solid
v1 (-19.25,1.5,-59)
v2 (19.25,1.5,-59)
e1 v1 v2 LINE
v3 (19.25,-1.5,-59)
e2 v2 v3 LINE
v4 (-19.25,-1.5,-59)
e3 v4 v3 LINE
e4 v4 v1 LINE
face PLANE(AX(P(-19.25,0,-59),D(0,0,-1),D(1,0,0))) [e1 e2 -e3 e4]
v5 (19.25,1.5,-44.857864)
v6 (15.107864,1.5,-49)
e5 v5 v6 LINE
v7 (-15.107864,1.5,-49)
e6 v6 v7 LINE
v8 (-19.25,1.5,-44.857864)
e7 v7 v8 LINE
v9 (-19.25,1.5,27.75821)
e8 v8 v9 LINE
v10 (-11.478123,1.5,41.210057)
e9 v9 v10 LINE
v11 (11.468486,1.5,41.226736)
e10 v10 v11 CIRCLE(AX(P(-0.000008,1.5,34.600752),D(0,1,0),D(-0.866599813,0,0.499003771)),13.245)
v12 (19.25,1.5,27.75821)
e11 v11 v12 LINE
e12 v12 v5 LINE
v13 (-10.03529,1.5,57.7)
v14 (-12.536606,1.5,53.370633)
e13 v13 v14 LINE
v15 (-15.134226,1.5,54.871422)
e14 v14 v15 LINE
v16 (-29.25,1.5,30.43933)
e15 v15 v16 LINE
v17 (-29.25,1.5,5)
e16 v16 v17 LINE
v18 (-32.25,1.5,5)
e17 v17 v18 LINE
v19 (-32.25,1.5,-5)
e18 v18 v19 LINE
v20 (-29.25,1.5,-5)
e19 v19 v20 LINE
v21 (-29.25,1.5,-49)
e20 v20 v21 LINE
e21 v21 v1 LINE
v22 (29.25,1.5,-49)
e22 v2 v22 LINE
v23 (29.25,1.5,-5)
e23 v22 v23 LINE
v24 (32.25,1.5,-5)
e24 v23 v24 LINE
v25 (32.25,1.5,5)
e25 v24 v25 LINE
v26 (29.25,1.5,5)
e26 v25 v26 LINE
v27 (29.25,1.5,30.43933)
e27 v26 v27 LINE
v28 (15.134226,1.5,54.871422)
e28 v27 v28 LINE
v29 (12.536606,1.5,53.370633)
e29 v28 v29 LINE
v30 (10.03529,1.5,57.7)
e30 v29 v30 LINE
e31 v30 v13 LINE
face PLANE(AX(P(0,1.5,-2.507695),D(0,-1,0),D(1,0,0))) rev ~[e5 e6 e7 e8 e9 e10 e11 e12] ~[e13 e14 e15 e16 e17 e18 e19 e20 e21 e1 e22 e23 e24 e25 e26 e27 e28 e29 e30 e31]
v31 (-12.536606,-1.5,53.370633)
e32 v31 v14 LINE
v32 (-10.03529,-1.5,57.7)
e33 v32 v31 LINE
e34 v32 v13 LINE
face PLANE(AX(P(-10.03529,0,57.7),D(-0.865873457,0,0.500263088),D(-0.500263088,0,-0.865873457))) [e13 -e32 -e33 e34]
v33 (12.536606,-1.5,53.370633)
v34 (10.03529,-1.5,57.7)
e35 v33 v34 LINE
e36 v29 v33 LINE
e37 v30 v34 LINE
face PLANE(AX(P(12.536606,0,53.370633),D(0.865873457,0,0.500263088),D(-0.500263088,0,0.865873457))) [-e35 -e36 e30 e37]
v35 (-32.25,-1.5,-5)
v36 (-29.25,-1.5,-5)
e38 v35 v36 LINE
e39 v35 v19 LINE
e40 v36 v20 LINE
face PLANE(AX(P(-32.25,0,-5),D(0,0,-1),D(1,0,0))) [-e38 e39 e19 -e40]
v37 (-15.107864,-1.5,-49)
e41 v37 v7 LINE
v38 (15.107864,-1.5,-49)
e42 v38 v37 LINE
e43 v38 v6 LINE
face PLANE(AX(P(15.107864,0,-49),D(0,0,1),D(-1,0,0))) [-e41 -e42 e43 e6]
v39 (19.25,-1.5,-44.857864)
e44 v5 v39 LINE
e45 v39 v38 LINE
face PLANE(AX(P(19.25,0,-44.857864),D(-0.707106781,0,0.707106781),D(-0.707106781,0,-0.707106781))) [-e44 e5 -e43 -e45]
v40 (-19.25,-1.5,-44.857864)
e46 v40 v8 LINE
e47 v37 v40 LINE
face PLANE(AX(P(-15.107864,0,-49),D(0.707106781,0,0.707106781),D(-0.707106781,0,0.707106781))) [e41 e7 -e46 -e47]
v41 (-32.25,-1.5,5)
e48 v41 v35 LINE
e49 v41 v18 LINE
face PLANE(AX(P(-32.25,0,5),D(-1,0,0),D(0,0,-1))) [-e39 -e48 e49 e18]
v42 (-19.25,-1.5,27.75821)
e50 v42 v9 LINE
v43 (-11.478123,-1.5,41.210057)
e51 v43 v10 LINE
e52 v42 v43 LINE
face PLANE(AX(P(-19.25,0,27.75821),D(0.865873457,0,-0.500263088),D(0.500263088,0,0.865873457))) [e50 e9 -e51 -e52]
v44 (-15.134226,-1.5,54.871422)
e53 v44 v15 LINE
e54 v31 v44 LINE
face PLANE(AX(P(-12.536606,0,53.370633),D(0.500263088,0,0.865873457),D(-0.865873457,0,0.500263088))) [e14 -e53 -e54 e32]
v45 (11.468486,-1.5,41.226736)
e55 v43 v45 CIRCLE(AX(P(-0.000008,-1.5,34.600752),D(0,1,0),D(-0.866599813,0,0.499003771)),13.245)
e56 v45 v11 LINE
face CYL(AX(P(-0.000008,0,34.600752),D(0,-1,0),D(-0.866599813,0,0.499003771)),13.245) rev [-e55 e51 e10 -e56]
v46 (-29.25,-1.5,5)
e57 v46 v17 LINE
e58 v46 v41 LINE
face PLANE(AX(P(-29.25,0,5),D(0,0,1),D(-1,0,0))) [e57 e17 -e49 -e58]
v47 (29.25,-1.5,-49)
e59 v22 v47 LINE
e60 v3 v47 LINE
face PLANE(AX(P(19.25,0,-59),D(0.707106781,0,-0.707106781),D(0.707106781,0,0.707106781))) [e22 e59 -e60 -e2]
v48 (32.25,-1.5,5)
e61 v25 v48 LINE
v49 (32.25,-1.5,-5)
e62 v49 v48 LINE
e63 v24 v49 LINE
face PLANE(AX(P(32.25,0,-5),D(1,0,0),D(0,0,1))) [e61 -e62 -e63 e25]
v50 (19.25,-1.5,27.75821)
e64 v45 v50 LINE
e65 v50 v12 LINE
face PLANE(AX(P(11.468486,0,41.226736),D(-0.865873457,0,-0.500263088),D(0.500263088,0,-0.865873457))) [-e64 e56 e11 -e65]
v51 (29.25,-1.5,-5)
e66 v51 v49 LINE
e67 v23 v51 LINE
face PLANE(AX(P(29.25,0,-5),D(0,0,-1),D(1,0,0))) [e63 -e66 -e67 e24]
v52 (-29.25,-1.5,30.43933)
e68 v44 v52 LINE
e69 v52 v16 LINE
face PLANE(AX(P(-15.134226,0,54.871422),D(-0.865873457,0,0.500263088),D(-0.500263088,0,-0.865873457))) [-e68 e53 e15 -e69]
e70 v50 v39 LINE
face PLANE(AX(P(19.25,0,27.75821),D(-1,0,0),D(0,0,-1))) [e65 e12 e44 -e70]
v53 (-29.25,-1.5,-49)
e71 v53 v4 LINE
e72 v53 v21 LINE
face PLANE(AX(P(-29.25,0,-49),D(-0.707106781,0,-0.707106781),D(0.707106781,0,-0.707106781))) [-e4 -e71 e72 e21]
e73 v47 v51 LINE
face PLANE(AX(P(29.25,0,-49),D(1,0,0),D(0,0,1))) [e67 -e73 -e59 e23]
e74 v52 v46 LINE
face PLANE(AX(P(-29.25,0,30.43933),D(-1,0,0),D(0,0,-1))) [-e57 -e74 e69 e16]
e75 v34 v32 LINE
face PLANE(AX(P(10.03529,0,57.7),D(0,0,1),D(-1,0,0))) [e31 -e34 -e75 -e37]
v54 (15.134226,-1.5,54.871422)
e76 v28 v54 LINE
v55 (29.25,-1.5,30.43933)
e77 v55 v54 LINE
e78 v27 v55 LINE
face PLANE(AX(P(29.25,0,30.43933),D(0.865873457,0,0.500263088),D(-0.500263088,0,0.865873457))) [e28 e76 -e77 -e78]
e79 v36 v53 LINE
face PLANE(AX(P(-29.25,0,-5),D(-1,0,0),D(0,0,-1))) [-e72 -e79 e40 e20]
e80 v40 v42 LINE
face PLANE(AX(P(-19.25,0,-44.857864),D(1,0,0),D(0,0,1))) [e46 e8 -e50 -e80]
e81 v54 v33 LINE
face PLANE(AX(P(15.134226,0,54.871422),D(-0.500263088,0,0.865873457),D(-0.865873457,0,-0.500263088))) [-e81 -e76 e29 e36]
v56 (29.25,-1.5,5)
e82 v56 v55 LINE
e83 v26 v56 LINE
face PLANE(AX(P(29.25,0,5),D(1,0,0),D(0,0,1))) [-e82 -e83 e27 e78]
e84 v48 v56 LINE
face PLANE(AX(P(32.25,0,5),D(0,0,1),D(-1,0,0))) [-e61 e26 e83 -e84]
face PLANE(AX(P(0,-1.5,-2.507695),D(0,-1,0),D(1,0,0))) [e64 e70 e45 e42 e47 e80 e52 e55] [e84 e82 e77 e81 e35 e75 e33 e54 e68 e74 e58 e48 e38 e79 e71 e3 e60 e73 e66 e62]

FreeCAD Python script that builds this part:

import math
import FreeCAD as App
import Part
import Sketcher


def add_polygon(sketch, points):
    """Adds a closed chain of lines whose ends are joined by coincident constraints."""
    first, n = sketch.GeometryCount, len(points)
    for a, b in zip(points, points[1:] + points[:1]):
        sketch.addGeometry(Part.LineSegment(App.Vector(*a, 0), App.Vector(*b, 0)), False)
    for i in range(n):
        sketch.addConstraint(Sketcher.Constraint("Coincident", first + i, 2, first + (i + 1) % n, 1))

doc = App.newDocument("Part")
params = doc.addObject("Spreadsheet::Sheet", "Params")
for row, (alias, value) in enumerate([
    ("sketch1_width", "3 mm"),
    ("sketch1_height", "44 mm"),
    ("sketch1_height2", "10 mm"),
    ("sketch1_length", "3 mm"),
    ("sketch1_length2", "5 mm"),
    ("pad1_length", "3 mm"),
], start=1):
    params.set(f"A{row}", alias)
    params.set(f"B{row}", "=" + value)
    params.setAlias(f"B{row}", alias)

body = doc.addObject("PartDesign::Body", "Body")

# Sketch on XZ plane
sketch1 = body.newObject("Sketcher::SketchObject", "Sketch")
sketch1.AttachmentSupport = (doc.getObject("XZ_Plane"), [""])
sketch1.MapMode = "FlatFace"
add_polygon(sketch1, [(-19.2, -59), (19.2, -59), (29.2, -49), (29.2, -5), (32.2, -5), (32.2, 5), (29.2, 5), (29.2, 30.4), (15.1, 54.9), (12.5, 53.4), (10, 57.7), (-10, 57.7), (-12.5, 53.4), (-15.1, 54.9), (-29.2, 30.4), (-29.2, 5), (-32.2, 5), (-32.2, -5), (-29.2, -5), (-29.2, -49)])  # lines 0-19
sketch1.addGeometry(Part.LineSegment(App.Vector(19.2, 27.8, 0), App.Vector(19.2, -44.9, 0)), False)  # 20
sketch1.addGeometry(Part.LineSegment(App.Vector(19.2, -44.9, 0), App.Vector(15.1, -49, 0)), False)  # 21
sketch1.addGeometry(Part.LineSegment(App.Vector(15.1, -49, 0), App.Vector(-15.1, -49, 0)), False)  # 22
sketch1.addGeometry(Part.LineSegment(App.Vector(-15.1, -49, 0), App.Vector(-19.2, -44.9, 0)), False)  # 23
sketch1.addGeometry(Part.LineSegment(App.Vector(-19.2, -44.9, 0), App.Vector(-19.2, 27.8, 0)), False)  # 24
sketch1.addGeometry(Part.LineSegment(App.Vector(-19.2, 27.8, 0), App.Vector(-11.5, 41.2, 0)), False)  # 25
sketch1.addGeometry(Part.ArcOfCircle(Part.Circle(App.Vector(0, 34.6, 0), App.Vector(0, 0, 1), 13.2), math.radians(30), math.radians(150)), False)  # 26
sketch1.addGeometry(Part.LineSegment(App.Vector(11.5, 41.2, 0), App.Vector(19.2, 27.8, 0)), False)  # 27
sketch1.addConstraint(Sketcher.Constraint("Coincident", 20, 2, 21, 1))
sketch1.addConstraint(Sketcher.Constraint("Coincident", 21, 2, 22, 1))
sketch1.addConstraint(Sketcher.Constraint("Coincident", 22, 2, 23, 1))
sketch1.addConstraint(Sketcher.Constraint("Coincident", 23, 2, 24, 1))
sketch1.addConstraint(Sketcher.Constraint("Coincident", 24, 2, 25, 1))
sketch1.addConstraint(Sketcher.Constraint("Coincident", 25, 2, 26, 2))
sketch1.addConstraint(Sketcher.Constraint("Tangent", 26, 1, 27, 1))
sketch1.addConstraint(Sketcher.Constraint("Coincident", 27, 2, 20, 1))
sketch1.addConstraint(Sketcher.Constraint("Horizontal", 0))
sketch1.addConstraint(Sketcher.Constraint("Vertical", 2))
sketch1.addConstraint(Sketcher.Constraint("Horizontal", 3))
sketch1.addConstraint(Sketcher.Constraint("Vertical", 4))
sketch1.addConstraint(Sketcher.Constraint("Horizontal", 5))
sketch1.addConstraint(Sketcher.Constraint("Vertical", 6))
sketch1.addConstraint(Sketcher.Constraint("Horizontal", 10))
sketch1.addConstraint(Sketcher.Constraint("Vertical", 14))
sketch1.addConstraint(Sketcher.Constraint("Horizontal", 15))
sketch1.addConstraint(Sketcher.Constraint("Vertical", 16))
sketch1.addConstraint(Sketcher.Constraint("Horizontal", 17))
sketch1.addConstraint(Sketcher.Constraint("Vertical", 18))
sketch1.addConstraint(Sketcher.Constraint("Vertical", 20))
sketch1.addConstraint(Sketcher.Constraint("Horizontal", 22))
sketch1.addConstraint(Sketcher.Constraint("Vertical", 24))
sketch1.addConstraint(Sketcher.Constraint("Symmetric", 2, 2, 14, 2, -1, 1))
sketch1.addConstraint(Sketcher.Constraint("Symmetric", 4, 2, 16, 2, -1, 1))
sketch1.addConstraint(Sketcher.Constraint("Symmetric", 8, 2, 11, 2, -2))
sketch1.addConstraint(Sketcher.Constraint("Symmetric", 7, 2, 12, 2, -2))
sketch1.addConstraint(Sketcher.Constraint("Symmetric", 6, 2, 13, 2, -2))
sketch1.addConstraint(Sketcher.Constraint("Symmetric", 2, 2, 17, 2, -2))
sketch1.addConstraint(Sketcher.Constraint("Symmetric", 20, 2, 23, 2, -2))
sketch1.addConstraint(Sketcher.Constraint("Perpendicular", 7, 8))
sketch1.addConstraint(Sketcher.Constraint("Perpendicular", 8, 9))
sketch1.addConstraint(Sketcher.Constraint("Perpendicular", 11, 12))
sketch1.addConstraint(Sketcher.Constraint("Perpendicular", 1, 19))
sketch1.addConstraint(Sketcher.Constraint("Perpendicular", 19, 21))
sketch1.addConstraint(Sketcher.Constraint("Perpendicular", 21, 23))
sketch1.addConstraint(Sketcher.Constraint("Parallel", 13, 25))
sketch1.addConstraint(Sketcher.Constraint("Parallel", 9, 27))
sketch1.addConstraint(Sketcher.Constraint("Horizontal", 1, 2, 18, 2))
sketch1.addConstraint(Sketcher.Constraint("Horizontal", 18, 2, 21, 2))
sketch1.addConstraint(Sketcher.Constraint("Horizontal", 24, 2, 27, 2))
sketch1.addConstraint(Sketcher.Constraint("Vertical", 0, 2, 20, 2))
sketch1.addConstraint(Sketcher.Constraint("Vertical", 19, 2, 23, 2))
sketch1.addConstraint(Sketcher.Constraint("DistanceX", 3, 1, 3, 2, 3.0))
sketch1.addConstraint(Sketcher.Constraint("DistanceY", 2, 1, 2, 2, 44.0))
sketch1.addConstraint(Sketcher.Constraint("DistanceY", 4, 1, 4, 2, 10.0))
sketch1.addConstraint(Sketcher.Constraint("Distance", 8, 3.0))
sketch1.addConstraint(Sketcher.Constraint("Distance", 9, 5.0))
sketch1.addConstraint(Sketcher.Constraint("DistanceX", 0, 1, 0, 2, 38.5))
sketch1.addConstraint(Sketcher.Constraint("DistanceY", 0, 2, -1, 1, 59.0))
sketch1.addConstraint(Sketcher.Constraint("Radius", 26, 13.245))
sketch1.addConstraint(Sketcher.Constraint("DistanceY", -1, 1, 9, 2, 57.7))
sketch1.addConstraint(Sketcher.Constraint("Distance", 7, 28.2167))
sketch1.addConstraint(Sketcher.Constraint("DistanceX", 10, 2, 10, 1, 20.070581))
sketch1.addConstraint(Sketcher.Constraint("DistanceX", 22, 2, 22, 1, 30.215729))
sketch1.addConstraint(Sketcher.Constraint("Distance", 25, 15.53558))
sketch1.addConstraint(Sketcher.Constraint("DistanceY", 20, 2, 20, 1, 72.616074))
sketch1.setExpression("Constraints[63]", "Params.sketch1_width")
sketch1.setExpression("Constraints[64]", "Params.sketch1_height")
sketch1.setExpression("Constraints[65]", "Params.sketch1_height2")
sketch1.setExpression("Constraints[66]", "Params.sketch1_length")
sketch1.setExpression("Constraints[67]", "Params.sketch1_length2")
pad1 = body.newObject("PartDesign::Pad", "Pad")
pad1.Profile = sketch1
pad1.setExpression("Length", "Params.pad1_length")
pad1.Midplane = True

doc.recompute()
